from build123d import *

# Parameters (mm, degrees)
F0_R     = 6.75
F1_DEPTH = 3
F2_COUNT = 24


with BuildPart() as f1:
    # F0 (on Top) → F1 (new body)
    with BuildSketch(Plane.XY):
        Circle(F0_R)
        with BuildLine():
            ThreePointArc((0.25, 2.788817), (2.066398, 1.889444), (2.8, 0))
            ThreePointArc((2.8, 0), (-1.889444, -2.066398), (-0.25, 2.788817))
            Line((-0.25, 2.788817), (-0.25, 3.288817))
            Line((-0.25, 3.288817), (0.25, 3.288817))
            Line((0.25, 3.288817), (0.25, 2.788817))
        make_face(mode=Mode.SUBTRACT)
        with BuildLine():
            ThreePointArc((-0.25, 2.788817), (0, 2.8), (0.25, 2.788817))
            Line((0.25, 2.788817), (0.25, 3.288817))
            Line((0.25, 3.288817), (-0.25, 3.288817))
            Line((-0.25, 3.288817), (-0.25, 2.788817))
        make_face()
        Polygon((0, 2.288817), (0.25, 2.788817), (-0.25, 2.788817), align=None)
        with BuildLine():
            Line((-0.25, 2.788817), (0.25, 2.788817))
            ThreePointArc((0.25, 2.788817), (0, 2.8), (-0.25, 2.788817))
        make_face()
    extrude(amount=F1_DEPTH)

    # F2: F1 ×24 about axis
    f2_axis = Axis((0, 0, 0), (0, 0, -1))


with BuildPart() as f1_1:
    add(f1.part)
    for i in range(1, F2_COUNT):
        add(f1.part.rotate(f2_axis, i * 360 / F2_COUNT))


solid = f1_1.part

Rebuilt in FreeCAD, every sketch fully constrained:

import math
import FreeCAD as App
import Part
import Sketcher

V = App.Vector
Q = App.Units.Quantity

doc = App.newDocument("Part")
body = doc.addObject("PartDesign::Body", "Body")

# Sketch on XY plane
sketch1 = doc.addObject("Sketcher::SketchObject", "Sketch")
body.addObject(sketch1)
sketch1.AttachmentSupport = (doc.XY_Plane, [""])
sketch1.MapMode = "FlatFace"
sketch1.addGeometry(Part.Circle(V(0, 0, 0), V(0, 0, 1), 6.8), False)
sketch1.addGeometry(Part.ArcOfCircle(Part.Circle(V(0, 0, 0), V(0, 0, 1), 2.8), math.radians(95), math.radians(360)), False)
sketch1.addGeometry(Part.LineSegment(V(-0.2, 2.8, 0), V(0, 2.3, 0)), False)
sketch1.addGeometry(Part.LineSegment(V(0, 2.3, 0), V(0.2, 2.8, 0)), False)
sketch1.addGeometry(Part.ArcOfCircle(Part.Circle(V(0, 0, 0), V(0, 0, 1), 2.8), math.radians(0), math.radians(85)), False)
sketch1.addConstraint(Sketcher.Constraint("Coincident", 1, 1, 2, 1))
sketch1.addConstraint(Sketcher.Constraint("Coincident", 2, 2, 3, 1))
sketch1.addConstraint(Sketcher.Constraint("Coincident", 3, 2, 4, 2))
sketch1.addConstraint(Sketcher.Constraint("Tangent", 4, 1, 1, 2))
sketch1.addConstraint(Sketcher.Constraint("Coincident", 0, 3, -1, 1))
sketch1.addConstraint(Sketcher.Constraint("Coincident", 1, 3, -1, 1))
sketch1.addConstraint(Sketcher.Constraint("Equal", 1, 4))
sketch1.addConstraint(Sketcher.Constraint("PointOnObject", 2, 2, -2))
sketch1.addConstraint(Sketcher.Constraint("PointOnObject", 4, 1, -1))
sketch1.addConstraint(Sketcher.Constraint("Horizontal", 1, 1, 3, 2))
sketch1.addConstraint(Sketcher.Constraint("Diameter", 0, Q("13.5 mm")))
sketch1.addConstraint(Sketcher.Constraint("Radius", 1, Q("2.8 mm")))
sketch1.addConstraint(Sketcher.Constraint("DistanceY", 2, 2, 1, 1, Q("0.5 mm")))
sketch1.addConstraint(Sketcher.Constraint("DistanceX", 1, 1, 3, 2, Q("0.5 mm")))
pad1 = doc.addObject("PartDesign::Pad", "Pad")
body.addObject(pad1)
pad1.Profile = sketch1
pad1.Length = 3
body2 = doc.addObject("PartDesign::Body", "Body001")
doc.recompute()

body2.BaseFeature = body
doc.recompute()

body3 = doc.addObject("PartDesign::Body", "Body002")
body3.BaseFeature = body
body3.Placement = App.Placement(V(0, 0, 0), App.Rotation(V(0, 0, -1), 15))
boolean = doc.addObject("PartDesign::Boolean", "Boolean")
body2.addObject(boolean)
boolean.Type = "Fuse"
boolean.addObjects([body3])
doc.recompute()

body4 = doc.addObject("PartDesign::Body", "Body003")
body4.BaseFeature = body
body4.Placement = App.Placement(V(0, 0, 0), App.Rotation(V(0, 0, -1), 30))
boolean2 = doc.addObject("PartDesign::Boolean", "Boolean001")
body2.addObject(boolean2)
boolean2.Type = "Fuse"
boolean2.addObjects([body4])
doc.recompute()

body5 = doc.addObject("PartDesign::Body", "Body004")
body5.BaseFeature = body
body5.Placement = App.Placement(V(0, 0, 0), App.Rotation(V(0, 0, -1), 45))
boolean3 = doc.addObject("PartDesign::Boolean", "Boolean002")
body2.addObject(boolean3)
boolean3.Type = "Fuse"
boolean3.addObjects([body5])
doc.recompute()

body6 = doc.addObject("PartDesign::Body", "Body005")
body6.BaseFeature = body
body6.Placement = App.Placement(V(0, 0, 0), App.Rotation(V(0, 0, -1), 60))
boolean4 = doc.addObject("PartDesign::Boolean", "Boolean003")
body2.addObject(boolean4)
boolean4.Type = "Fuse"
boolean4.addObjects([body6])
doc.recompute()

body7 = doc.addObject("PartDesign::Body", "Body006")
body7.BaseFeature = body
body7.Placement = App.Placement(V(0, 0, 0), App.Rotation(V(0, 0, -1), 75))
boolean5 = doc.addObject("PartDesign::Boolean", "Boolean004")
body2.addObject(boolean5)
boolean5.Type = "Fuse"
boolean5.addObjects([body7])
doc.recompute()

body8 = doc.addObject("PartDesign::Body", "Body007")
body8.BaseFeature = body
body8.Placement = App.Placement(V(0, 0, 0), App.Rotation(V(0, 0, -1), 90))
boolean6 = doc.addObject("PartDesign::Boolean", "Boolean005")
body2.addObject(boolean6)
boolean6.Type = "Fuse"
boolean6.addObjects([body8])
doc.recompute()

body9 = doc.addObject("PartDesign::Body", "Body008")
body9.BaseFeature = body
body9.Placement = App.Placement(V(0, 0, 0), App.Rotation(V(0, 0, -1), 105))
boolean7 = doc.addObject("PartDesign::Boolean", "Boolean006")
body2.addObject(boolean7)
boolean7.Type = "Fuse"
boolean7.addObjects([body9])
doc.recompute()

body10 = doc.addObject("PartDesign::Body", "Body009")
body10.BaseFeature = body
body10.Placement = App.Placement(V(0, 0, 0), App.Rotation(V(0, 0, -1), 120))
boolean8 = doc.addObject("PartDesign::Boolean", "Boolean007")
body2.addObject(boolean8)
boolean8.Type = "Fuse"
boolean8.addObjects([body10])
doc.recompute()

body11 = doc.addObject("PartDesign::Body", "Body010")
body11.BaseFeature = body
body11.Placement = App.Placement(V(0, 0, 0), App.Rotation(V(0, 0, -1), 135))
boolean9 = doc.addObject("PartDesign::Boolean", "Boolean008")
body2.addObject(boolean9)
boolean9.Type = "Fuse"
boolean9.addObjects([body11])
doc.recompute()

body12 = doc.addObject("PartDesign::Body", "Body011")
body12.BaseFeature = body
body12.Placement = App.Placement(V(0, 0, 0), App.Rotation(V(0, 0, -1), 150))
boolean10 = doc.addObject("PartDesign::Boolean", "Boolean009")
body2.addObject(boolean10)
boolean10.Type = "Fuse"
boolean10.addObjects([body12])
doc.recompute()

body13 = doc.addObject("PartDesign::Body", "Body012")
body13.BaseFeature = body
body13.Placement = App.Placement(V(0, 0, 0), App.Rotation(V(0, 0, -1), 165))
boolean11 = doc.addObject("PartDesign::Boolean", "Boolean010")
body2.addObject(boolean11)
boolean11.Type = "Fuse"
boolean11.addObjects([body13])
doc.recompute()

body14 = doc.addObject("PartDesign::Body", "Body013")
body14.BaseFeature = body
body14.Placement = App.Placement(V(0, 0, 0), App.Rotation(V(0, 0, -1), 180))
boolean12 = doc.addObject("PartDesign::Boolean", "Boolean011")
body2.addObject(boolean12)
boolean12.Type = "Fuse"
boolean12.addObjects([body14])
doc.recompute()

body15 = doc.addObject("PartDesign::Body", "Body014")
body15.BaseFeature = body
body15.Placement = App.Placement(V(0, 0, 0), App.Rotation(V(0, 0, -1), 195))
boolean13 = doc.addObject("PartDesign::Boolean", "Boolean012")
body2.addObject(boolean13)
boolean13.Type = "Fuse"
boolean13.addObjects([body15])
doc.recompute()

body16 = doc.addObject("PartDesign::Body", "Body015")
body16.BaseFeature = body
body16.Placement = App.Placement(V(0, 0, 0), App.Rotation(V(0, 0, -1), 210))
boolean14 = doc.addObject("PartDesign::Boolean", "Boolean013")
body2.addObject(boolean14)
boolean14.Type = "Fuse"
boolean14.addObjects([body16])
doc.recompute()

body17 = doc.addObject("PartDesign::Body", "Body016")
body17.BaseFeature = body
body17.Placement = App.Placement(V(0, 0, 0), App.Rotation(V(0, 0, -1), 225))
boolean15 = doc.addObject("PartDesign::Boolean", "Boolean014")
body2.addObject(boolean15)
boolean15.Type = "Fuse"
boolean15.addObjects([body17])
doc.recompute()

body18 = doc.addObject("PartDesign::Body", "Body017")
body18.BaseFeature = body
body18.Placement = App.Placement(V(0, 0, 0), App.Rotation(V(0, 0, -1), 240))
boolean16 = doc.addObject("PartDesign::Boolean", "Boolean015")
body2.addObject(boolean16)
boolean16.Type = "Fuse"
boolean16.addObjects([body18])
doc.recompute()

body19 = doc.addObject("PartDesign::Body", "Body018")
body19.BaseFeature = body
body19.Placement = App.Placement(V(0, 0, 0), App.Rotation(V(0, 0, -1), 255))
boolean17 = doc.addObject("PartDesign::Boolean", "Boolean016")
body2.addObject(boolean17)
boolean17.Type = "Fuse"
boolean17.addObjects([body19])
doc.recompute()

body20 = doc.addObject("PartDesign::Body", "Body019")
body20.BaseFeature = body
body20.Placement = App.Placement(V(0, 0, 0), App.Rotation(V(0, 0, -1), 270))
boolean18 = doc.addObject("PartDesign::Boolean", "Boolean017")
body2.addObject(boolean18)
boolean18.Type = "Fuse"
boolean18.addObjects([body20])
doc.recompute()

body21 = doc.addObject("PartDesign::Body", "Body020")
body21.BaseFeature = body
body21.Placement = App.Placement(V(0, 0, 0), App.Rotation(V(0, 0, -1), 285))
boolean19 = doc.addObject("PartDesign::Boolean", "Boolean018")
body2.addObject(boolean19)
boolean19.Type = "Fuse"
boolean19.addObjects([body21])
doc.recompute()

body22 = doc.addObject("PartDesign::Body", "Body021")
body22.BaseFeature = body
body22.Placement = App.Placement(V(0, 0, 0), App.Rotation(V(0, 0, -1), 300))
boolean20 = doc.addObject("PartDesign::Boolean", "Boolean019")
body2.addObject(boolean20)
boolean20.Type = "Fuse"
boolean20.addObjects([body22])
doc.recompute()

body23 = doc.addObject("PartDesign::Body", "Body022")
body23.BaseFeature = body
body23.Placement = App.Placement(V(0, 0, 0), App.Rotation(V(0, 0, -1), 315))
boolean21 = doc.addObject("PartDesign::Boolean", "Boolean020")
body2.addObject(boolean21)
boolean21.Type = "Fuse"
boolean21.addObjects([body23])
doc.recompute()

body24 = doc.addObject("PartDesign::Body", "Body023")
body24.BaseFeature = body
body24.Placement = App.Placement(V(0, 0, 0), App.Rotation(V(0, 0, -1), 330))
boolean22 = doc.addObject("PartDesign::Boolean", "Boolean021")
body2.addObject(boolean22)
boolean22.Type = "Fuse"
boolean22.addObjects([body24])
doc.recompute()

body.Placement = App.Placement(V(0, 0, 0), App.Rotation(V(0, 0, -1), 345))
boolean23 = doc.addObject("PartDesign::Boolean", "Boolean022")
body2.addObject(boolean23)
boolean23.Type = "Fuse"
boolean23.addObjects([body])

doc.recompute()
